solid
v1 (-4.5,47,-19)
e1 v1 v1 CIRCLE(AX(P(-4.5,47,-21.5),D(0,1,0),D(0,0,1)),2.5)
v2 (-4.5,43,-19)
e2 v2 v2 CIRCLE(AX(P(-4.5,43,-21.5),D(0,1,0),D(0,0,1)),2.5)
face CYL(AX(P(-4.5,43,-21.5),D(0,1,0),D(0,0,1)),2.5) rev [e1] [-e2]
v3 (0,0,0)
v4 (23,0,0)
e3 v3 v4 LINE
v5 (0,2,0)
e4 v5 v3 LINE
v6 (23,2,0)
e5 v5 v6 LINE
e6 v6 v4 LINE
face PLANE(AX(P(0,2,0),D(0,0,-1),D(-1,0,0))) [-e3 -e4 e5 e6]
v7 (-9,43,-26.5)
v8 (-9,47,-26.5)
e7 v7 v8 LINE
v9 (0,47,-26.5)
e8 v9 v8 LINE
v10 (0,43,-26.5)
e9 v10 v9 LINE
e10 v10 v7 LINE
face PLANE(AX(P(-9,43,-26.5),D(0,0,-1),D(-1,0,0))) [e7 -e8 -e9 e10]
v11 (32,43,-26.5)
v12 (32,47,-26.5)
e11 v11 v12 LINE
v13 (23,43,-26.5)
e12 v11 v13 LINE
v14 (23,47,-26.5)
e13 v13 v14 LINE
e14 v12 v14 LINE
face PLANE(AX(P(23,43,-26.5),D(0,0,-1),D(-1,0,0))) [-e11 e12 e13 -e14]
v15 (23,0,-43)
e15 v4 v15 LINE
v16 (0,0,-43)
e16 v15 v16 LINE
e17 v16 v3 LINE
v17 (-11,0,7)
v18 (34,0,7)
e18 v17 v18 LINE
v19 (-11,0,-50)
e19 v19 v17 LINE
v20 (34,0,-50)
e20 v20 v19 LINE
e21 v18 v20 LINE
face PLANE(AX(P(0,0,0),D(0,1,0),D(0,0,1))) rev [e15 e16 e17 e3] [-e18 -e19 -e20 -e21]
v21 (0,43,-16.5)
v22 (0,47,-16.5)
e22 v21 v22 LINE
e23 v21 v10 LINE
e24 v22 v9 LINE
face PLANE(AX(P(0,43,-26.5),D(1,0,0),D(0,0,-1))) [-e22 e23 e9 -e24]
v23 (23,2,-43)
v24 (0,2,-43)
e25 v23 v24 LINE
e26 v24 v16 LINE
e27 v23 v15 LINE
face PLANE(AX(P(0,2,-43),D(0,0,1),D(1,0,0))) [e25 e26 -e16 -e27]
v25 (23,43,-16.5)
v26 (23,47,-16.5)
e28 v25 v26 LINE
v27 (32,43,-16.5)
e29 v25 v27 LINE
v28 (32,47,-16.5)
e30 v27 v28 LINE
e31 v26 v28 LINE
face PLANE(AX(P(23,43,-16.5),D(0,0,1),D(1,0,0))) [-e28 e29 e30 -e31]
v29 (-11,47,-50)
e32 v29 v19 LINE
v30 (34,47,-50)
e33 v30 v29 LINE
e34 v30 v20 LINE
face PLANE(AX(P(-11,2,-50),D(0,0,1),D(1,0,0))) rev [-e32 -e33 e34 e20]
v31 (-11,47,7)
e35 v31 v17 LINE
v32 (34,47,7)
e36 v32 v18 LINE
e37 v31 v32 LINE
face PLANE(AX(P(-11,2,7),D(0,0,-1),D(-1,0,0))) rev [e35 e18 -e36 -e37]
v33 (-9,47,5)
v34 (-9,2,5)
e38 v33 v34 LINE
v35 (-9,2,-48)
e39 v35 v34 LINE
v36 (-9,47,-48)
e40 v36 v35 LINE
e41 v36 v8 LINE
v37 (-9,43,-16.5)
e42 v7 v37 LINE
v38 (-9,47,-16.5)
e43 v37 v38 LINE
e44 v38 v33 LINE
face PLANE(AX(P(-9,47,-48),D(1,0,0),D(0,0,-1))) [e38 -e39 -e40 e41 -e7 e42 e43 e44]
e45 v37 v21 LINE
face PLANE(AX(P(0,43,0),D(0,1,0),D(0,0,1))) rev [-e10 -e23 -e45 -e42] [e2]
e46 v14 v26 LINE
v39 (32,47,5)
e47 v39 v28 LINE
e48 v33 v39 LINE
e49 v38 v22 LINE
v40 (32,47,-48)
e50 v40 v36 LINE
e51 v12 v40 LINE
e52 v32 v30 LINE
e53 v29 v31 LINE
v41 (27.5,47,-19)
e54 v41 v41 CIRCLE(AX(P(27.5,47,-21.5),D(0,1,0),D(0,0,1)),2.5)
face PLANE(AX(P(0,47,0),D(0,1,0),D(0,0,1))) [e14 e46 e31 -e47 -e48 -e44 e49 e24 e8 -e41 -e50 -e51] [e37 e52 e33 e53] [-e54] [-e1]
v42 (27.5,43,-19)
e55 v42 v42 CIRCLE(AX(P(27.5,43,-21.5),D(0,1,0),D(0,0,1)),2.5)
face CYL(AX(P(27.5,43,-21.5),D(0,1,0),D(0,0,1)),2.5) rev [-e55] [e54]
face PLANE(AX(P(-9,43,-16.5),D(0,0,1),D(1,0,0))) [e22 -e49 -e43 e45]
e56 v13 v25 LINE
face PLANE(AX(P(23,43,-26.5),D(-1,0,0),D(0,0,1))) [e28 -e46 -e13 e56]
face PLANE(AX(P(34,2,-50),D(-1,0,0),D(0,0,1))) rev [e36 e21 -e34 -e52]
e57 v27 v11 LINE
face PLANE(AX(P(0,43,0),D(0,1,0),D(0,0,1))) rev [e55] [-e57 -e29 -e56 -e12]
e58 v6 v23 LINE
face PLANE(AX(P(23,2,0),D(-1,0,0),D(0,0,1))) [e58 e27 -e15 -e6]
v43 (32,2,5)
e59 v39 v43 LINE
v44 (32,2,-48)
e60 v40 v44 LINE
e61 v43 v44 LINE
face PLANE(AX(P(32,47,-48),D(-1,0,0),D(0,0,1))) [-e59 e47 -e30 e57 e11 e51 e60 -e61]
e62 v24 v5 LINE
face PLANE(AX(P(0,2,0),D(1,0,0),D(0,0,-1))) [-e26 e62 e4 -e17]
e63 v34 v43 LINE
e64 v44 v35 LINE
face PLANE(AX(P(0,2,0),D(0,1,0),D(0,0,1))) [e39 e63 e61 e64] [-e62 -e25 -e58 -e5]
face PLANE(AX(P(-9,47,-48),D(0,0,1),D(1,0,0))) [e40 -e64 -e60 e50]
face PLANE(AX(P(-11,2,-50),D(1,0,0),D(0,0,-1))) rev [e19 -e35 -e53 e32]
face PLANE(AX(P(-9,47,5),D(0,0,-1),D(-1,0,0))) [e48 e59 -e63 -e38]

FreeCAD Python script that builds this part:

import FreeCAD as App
import Part
import Sketcher

V = App.Vector
Q = App.Units.Quantity

doc = App.newDocument("Part")
params = doc.addObject("Spreadsheet::Sheet", "Params")
for row, (alias, value) in enumerate([
    ("sketch1_width", "45 mm"),
    ("sketch1_width2", "23 mm"),
    ("sketch1_height", "57 mm"),
    ("sketch1_height2", "43 mm"),
    ("pad1_length", "2 mm"),
    ("sketch2_width", "45 mm"),
    ("sketch2_width2", "41 mm"),
    ("sketch2_height", "57 mm"),
    ("sketch2_height2", "53 mm"),
    ("pad2_length", "45 mm"),
    ("sketch3_diameter", "5 mm"),
    ("sketch3_width", "9 mm"),
    ("sketch3_height", "10 mm"),
    ("pad3_length", "4 mm"),
], start=1):
    params.set(f"A{row}", alias)
    params.set(f"B{row}", "=" + value)
    params.setAlias(f"B{row}", alias)

body = doc.addObject("PartDesign::Body", "Body")

sketch1 = doc.addObject("Sketcher::SketchObject", "Sketch")
body.addObject(sketch1)
sketch1.AttachmentSupport = (doc.XZ_Plane, [""])
sketch1.MapMode = "FlatFace"
sketch1.addGeometry(Part.LineSegment(V(-11, -50, 0), V(-11, 7, 0)), False)
sketch1.addGeometry(Part.LineSegment(V(-11, 7, 0), V(34, 7, 0)), False)
sketch1.addGeometry(Part.LineSegment(V(34, 7, 0), V(34, -50, 0)), False)
sketch1.addGeometry(Part.LineSegment(V(34, -50, 0), V(-11, -50, 0)), False)
sketch1.addGeometry(Part.LineSegment(V(23, 0, 0), V(0, 0, 0)), False)
sketch1.addGeometry(Part.LineSegment(V(0, 0, 0), V(0, -43, 0)), False)
sketch1.addGeometry(Part.LineSegment(V(0, -43, 0), V(23, -43, 0)), False)
sketch1.addGeometry(Part.LineSegment(V(23, -43, 0), V(23, 0, 0)), False)
sketch1.addConstraint(Sketcher.Constraint("Coincident", 0, 2, 1, 1))
sketch1.addConstraint(Sketcher.Constraint("Coincident", 1, 2, 2, 1))
sketch1.addConstraint(Sketcher.Constraint("Coincident", 2, 2, 3, 1))
sketch1.addConstraint(Sketcher.Constraint("Coincident", 3, 2, 0, 1))
sketch1.addConstraint(Sketcher.Constraint("Coincident", 4, 2, 5, 1))
sketch1.addConstraint(Sketcher.Constraint("Coincident", 5, 2, 6, 1))
sketch1.addConstraint(Sketcher.Constraint("Coincident", 6, 2, 7, 1))
sketch1.addConstraint(Sketcher.Constraint("Coincident", 7, 2, 4, 1))
sketch1.addConstraint(Sketcher.Constraint("Vertical", 0))
sketch1.addConstraint(Sketcher.Constraint("Horizontal", 1))
sketch1.addConstraint(Sketcher.Constraint("Vertical", 2))
sketch1.addConstraint(Sketcher.Constraint("Horizontal", 3))
sketch1.addConstraint(Sketcher.Constraint("Horizontal", 4))
sketch1.addConstraint(Sketcher.Constraint("Vertical", 5))
sketch1.addConstraint(Sketcher.Constraint("Horizontal", 6))
sketch1.addConstraint(Sketcher.Constraint("Vertical", 7))
sketch1.addConstraint(Sketcher.Constraint("Coincident", 4, 2, -1, 1))
sketch1.addConstraint(Sketcher.Constraint("DistanceX", 1, 1, 1, 2, Q("45 mm")))
sketch1.addConstraint(Sketcher.Constraint("DistanceX", 4, 2, 4, 1, Q("23 mm")))
sketch1.addConstraint(Sketcher.Constraint("DistanceY", 0, 1, 0, 2, Q("57 mm")))
sketch1.addConstraint(Sketcher.Constraint("DistanceY", 5, 2, 5, 1, Q("43 mm")))
sketch1.addConstraint(Sketcher.Constraint("DistanceX", 0, 2, -1, 1, Q("11 mm")))
sketch1.addConstraint(Sketcher.Constraint("DistanceY", -1, 1, 0, 2, Q("7 mm")))
sketch1.setExpression("Constraints[17]", "Params.sketch1_width")
sketch1.setExpression("Constraints[18]", "Params.sketch1_width2")
sketch1.setExpression("Constraints[19]", "Params.sketch1_height")
sketch1.setExpression("Constraints[20]", "Params.sketch1_height2")
pad1 = doc.addObject("PartDesign::Pad", "Pad")
body.addObject(pad1)
pad1.Profile = sketch1
pad1.setExpression("Length", "Params.pad1_length")
pad1.Reversed = True

sketch2 = doc.addObject("Sketcher::SketchObject", "Sketch001")
body.addObject(sketch2)
sketch2.AttachmentSupport = (doc.XZ_Plane, [""])
sketch2.MapMode = "FlatFace"
sketch2.AttachmentOffset = App.Placement(V(0, 0, -2), App.Rotation())
sketch2.addGeometry(Part.LineSegment(V(-11, -50, 0), V(-11, 7, 0)), False)
sketch2.addGeometry(Part.LineSegment(V(-11, 7, 0), V(34, 7, 0)), False)
sketch2.addGeometry(Part.LineSegment(V(34, 7, 0), V(34, -50, 0)), False)
sketch2.addGeometry(Part.LineSegment(V(34, -50, 0), V(-11, -50, 0)), False)
sketch2.addGeometry(Part.LineSegment(V(32, 5, 0), V(-9, 5, 0)), False)
sketch2.addGeometry(Part.LineSegment(V(-9, 5, 0), V(-9, -48, 0)), False)
sketch2.addGeometry(Part.LineSegment(V(-9, -48, 0), V(32, -48, 0)), False)
sketch2.addGeometry(Part.LineSegment(V(32, -48, 0), V(32, 5, 0)), False)
sketch2.addConstraint(Sketcher.Constraint("Coincident", 0, 2, 1, 1))
sketch2.addConstraint(Sketcher.Constraint("Coincident", 1, 2, 2, 1))
sketch2.addConstraint(Sketcher.Constraint("Coincident", 2, 2, 3, 1))
sketch2.addConstraint(Sketcher.Constraint("Coincident", 3, 2, 0, 1))
sketch2.addConstraint(Sketcher.Constraint("Coincident", 4, 2, 5, 1))
sketch2.addConstraint(Sketcher.Constraint("Coincident", 5, 2, 6, 1))
sketch2.addConstraint(Sketcher.Constraint("Coincident", 6, 2, 7, 1))
sketch2.addConstraint(Sketcher.Constraint("Coincident", 7, 2, 4, 1))
sketch2.addConstraint(Sketcher.Constraint("Vertical", 0))
sketch2.addConstraint(Sketcher.Constraint("Horizontal", 1))
sketch2.addConstraint(Sketcher.Constraint("Vertical", 2))
sketch2.addConstraint(Sketcher.Constraint("Horizontal", 3))
sketch2.addConstraint(Sketcher.Constraint("Horizontal", 4))
sketch2.addConstraint(Sketcher.Constraint("Vertical", 5))
sketch2.addConstraint(Sketcher.Constraint("Horizontal", 6))
sketch2.addConstraint(Sketcher.Constraint("Vertical", 7))
sketch2.addConstraint(Sketcher.Constraint("DistanceX", 1, 1, 1, 2, Q("45 mm")))
sketch2.addConstraint(Sketcher.Constraint("DistanceX", 4, 2, 4, 1, Q("41 mm")))
sketch2.addConstraint(Sketcher.Constraint("DistanceY", 0, 1, 0, 2, Q("57 mm")))
sketch2.addConstraint(Sketcher.Constraint("DistanceY", 5, 2, 5, 1, Q("53 mm")))
sketch2.addConstraint(Sketcher.Constraint("DistanceX", 0, 2, -1, 1, Q("11 mm")))
sketch2.addConstraint(Sketcher.Constraint("DistanceY", -1, 1, 0, 2, Q("7 mm")))
sketch2.addConstraint(Sketcher.Constraint("DistanceX", 4, 2, -1, 1, Q("9 mm")))
sketch2.addConstraint(Sketcher.Constraint("DistanceY", -1, 1, 4, 2, Q("5 mm")))
sketch2.setExpression("Constraints[16]", "Params.sketch2_width")
sketch2.setExpression("Constraints[17]", "Params.sketch2_width2")
sketch2.setExpression("Constraints[18]", "Params.sketch2_height")
sketch2.setExpression("Constraints[19]", "Params.sketch2_height2")
pad2 = doc.addObject("PartDesign::Pad", "Pad001")
body.addObject(pad2)
pad2.Profile = sketch2
pad2.setExpression("Length", "Params.pad2_length")
pad2.Reversed = True

sketch3 = doc.addObject("Sketcher::SketchObject", "Sketch002")
body.addObject(sketch3)
sketch3.AttachmentSupport = (doc.XZ_Plane, [""])
sketch3.MapMode = "FlatFace"
sketch3.AttachmentOffset = App.Placement(V(0, 0, -47), App.Rotation())
sketch3.addGeometry(Part.LineSegment(V(-9, -26.5, 0), V(-9, -16.5, 0)), False)
sketch3.addGeometry(Part.LineSegment(V(-9, -16.5, 0), V(0, -16.5, 0)), False)
sketch3.addGeometry(Part.LineSegment(V(0, -16.5, 0), V(0, -26.5, 0)), False)
sketch3.addGeometry(Part.LineSegment(V(0, -26.5, 0), V(-9, -26.5, 0)), False)
sketch3.addGeometry(Part.Circle(V(-4.5, -21.5, 0), V(0, 0, 1), 2.5), False)
sketch3.addGeometry(Part.LineSegment(V(23, -26.5, 0), V(23, -16.5, 0)), False)
sketch3.addGeometry(Part.LineSegment(V(23, -16.5, 0), V(32, -16.5, 0)), False)
sketch3.addGeometry(Part.LineSegment(V(32, -16.5, 0), V(32, -26.5, 0)), False)
sketch3.addGeometry(Part.LineSegment(V(32, -26.5, 0), V(23, -26.5, 0)), False)
sketch3.addGeometry(Part.Circle(V(27.5, -21.5, 0), V(0, 0, 1), 2.5), False)
sketch3.addConstraint(Sketcher.Constraint("Coincident", 0, 2, 1, 1))
sketch3.addConstraint(Sketcher.Constraint("Coincident", 1, 2, 2, 1))
sketch3.addConstraint(Sketcher.Constraint("Coincident", 2, 2, 3, 1))
sketch3.addConstraint(Sketcher.Constraint("Coincident", 3, 2, 0, 1))
sketch3.addConstraint(Sketcher.Constraint("Coincident", 5, 2, 6, 1))
sketch3.addConstraint(Sketcher.Constraint("Coincident", 6, 2, 7, 1))
sketch3.addConstraint(Sketcher.Constraint("Coincident", 7, 2, 8, 1))
sketch3.addConstraint(Sketcher.Constraint("Coincident", 8, 2, 5, 1))
sketch3.addConstraint(Sketcher.Constraint("Vertical", 0))
sketch3.addConstraint(Sketcher.Constraint("Horizontal", 1))
sketch3.addConstraint(Sketcher.Constraint("Vertical", 2))
sketch3.addConstraint(Sketcher.Constraint("Horizontal", 3))
sketch3.addConstraint(Sketcher.Constraint("Vertical", 5))
sketch3.addConstraint(Sketcher.Constraint("Horizontal", 6))
sketch3.addConstraint(Sketcher.Constraint("Vertical", 7))
sketch3.addConstraint(Sketcher.Constraint("Horizontal", 8))
sketch3.addConstraint(Sketcher.Constraint("Equal", 4, 9))
sketch3.addConstraint(Sketcher.Constraint("PointOnObject", 1, 2, -2))
sketch3.addConstraint(Sketcher.Constraint("Horizontal", 4, 3, 9, 3))
sketch3.addConstraint(Sketcher.Constraint("Horizontal", 1, 2, 5, 2))
sketch3.addConstraint(Sketcher.Constraint("Horizontal", 3, 2, 7, 2))
sketch3.addConstraint(Sketcher.Constraint("Equal", 3, 6))
sketch3.addConstraint(Sketcher.Constraint("Diameter", 4, Q("5 mm")))
sketch3.addConstraint(Sketcher.Constraint("DistanceX", 1, 1, 1, 2, Q("9 mm")))
sketch3.addConstraint(Sketcher.Constraint("DistanceY", 0, 1, 0, 2, Q("10 mm")))
sketch3.addConstraint(Sketcher.Constraint("DistanceX", -1, 1, 5, 2, Q("23 mm")))
sketch3.addConstraint(Sketcher.Constraint("DistanceX", 4, 3, 9, 3, Q("32 mm")))
sketch3.addConstraint(Sketcher.Constraint("DistanceY", 4, 3, 0, 2, Q("5 mm")))
sketch3.addConstraint(Sketcher.Constraint("DistanceX", 4, 3, -1, 1, Q("4.5 mm")))
sketch3.addConstraint(Sketcher.Constraint("DistanceY", 4, 3, -1, 1, Q("21.5 mm")))
sketch3.setExpression("Constraints[22]", "Params.sketch3_diameter")
sketch3.setExpression("Constraints[23]", "Params.sketch3_width")
sketch3.setExpression("Constraints[24]", "Params.sketch3_height")
pad3 = doc.addObject("PartDesign::Pad", "Pad002")
body.addObject(pad3)
pad3.Profile = sketch3
pad3.setExpression("Length", "Params.pad3_length")

doc.recompute()
